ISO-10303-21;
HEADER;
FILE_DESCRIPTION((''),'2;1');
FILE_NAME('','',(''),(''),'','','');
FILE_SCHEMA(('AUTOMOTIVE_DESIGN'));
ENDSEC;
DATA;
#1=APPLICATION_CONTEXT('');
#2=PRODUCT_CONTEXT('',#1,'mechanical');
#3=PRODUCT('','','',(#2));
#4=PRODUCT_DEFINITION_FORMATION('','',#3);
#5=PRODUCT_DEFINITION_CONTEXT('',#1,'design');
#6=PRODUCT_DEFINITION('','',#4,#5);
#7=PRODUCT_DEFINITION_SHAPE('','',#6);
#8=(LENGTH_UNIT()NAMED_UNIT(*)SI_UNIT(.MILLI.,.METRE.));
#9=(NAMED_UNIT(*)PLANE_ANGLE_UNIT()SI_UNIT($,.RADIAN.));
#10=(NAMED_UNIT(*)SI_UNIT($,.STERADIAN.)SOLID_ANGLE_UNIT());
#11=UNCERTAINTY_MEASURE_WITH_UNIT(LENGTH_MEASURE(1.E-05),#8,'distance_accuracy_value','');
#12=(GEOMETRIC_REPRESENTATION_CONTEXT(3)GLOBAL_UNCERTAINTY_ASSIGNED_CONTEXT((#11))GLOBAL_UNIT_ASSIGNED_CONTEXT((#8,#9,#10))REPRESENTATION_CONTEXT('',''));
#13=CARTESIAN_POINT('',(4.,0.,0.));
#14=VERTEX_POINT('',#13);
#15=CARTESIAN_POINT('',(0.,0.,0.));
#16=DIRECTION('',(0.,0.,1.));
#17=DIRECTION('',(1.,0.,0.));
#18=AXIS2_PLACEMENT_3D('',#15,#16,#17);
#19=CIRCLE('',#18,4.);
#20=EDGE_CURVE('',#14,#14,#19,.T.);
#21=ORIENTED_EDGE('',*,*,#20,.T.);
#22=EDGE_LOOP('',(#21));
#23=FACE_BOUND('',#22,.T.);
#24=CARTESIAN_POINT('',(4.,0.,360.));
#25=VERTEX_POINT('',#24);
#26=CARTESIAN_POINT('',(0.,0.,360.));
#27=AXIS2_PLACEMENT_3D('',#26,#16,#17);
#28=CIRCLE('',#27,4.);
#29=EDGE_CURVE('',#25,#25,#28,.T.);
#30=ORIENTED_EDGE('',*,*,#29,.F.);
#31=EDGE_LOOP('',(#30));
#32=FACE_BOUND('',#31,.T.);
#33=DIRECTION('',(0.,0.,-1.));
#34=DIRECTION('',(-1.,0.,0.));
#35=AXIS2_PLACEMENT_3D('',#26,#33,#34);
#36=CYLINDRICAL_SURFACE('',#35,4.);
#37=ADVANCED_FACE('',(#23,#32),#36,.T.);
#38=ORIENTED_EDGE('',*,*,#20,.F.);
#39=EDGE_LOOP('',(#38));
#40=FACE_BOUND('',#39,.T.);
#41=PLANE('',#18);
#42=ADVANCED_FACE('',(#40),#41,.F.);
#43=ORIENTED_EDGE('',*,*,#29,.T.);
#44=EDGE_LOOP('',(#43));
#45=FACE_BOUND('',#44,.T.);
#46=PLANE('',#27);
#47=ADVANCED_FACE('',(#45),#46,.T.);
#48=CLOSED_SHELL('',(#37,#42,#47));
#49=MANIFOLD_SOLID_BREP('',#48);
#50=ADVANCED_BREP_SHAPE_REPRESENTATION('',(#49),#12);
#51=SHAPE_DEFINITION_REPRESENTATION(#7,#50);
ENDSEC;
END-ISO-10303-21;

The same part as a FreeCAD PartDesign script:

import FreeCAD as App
import Part
import Sketcher

V = App.Vector

doc = App.newDocument("Part")
body = doc.addObject("PartDesign::Body", "Body")

sketch1 = body.newObject("Sketcher::SketchObject", "Sketch")
sketch1.AttachmentSupport = (doc.getObject("XY_Plane"), [""])
sketch1.MapMode = "FlatFace"
sketch1.addGeometry(Part.Circle(V(0, 0, 0), V(0, 0, 1), 4), False)
sketch1.addConstraint(Sketcher.Constraint("Coincident", 0, 3, -1, 1))
sketch1.addConstraint(Sketcher.Constraint("Diameter", 0, 8.0))
pad1 = body.newObject("PartDesign::Pad", "Pad")
pad1.Profile = sketch1
pad1.Length = 360

doc.recompute()
